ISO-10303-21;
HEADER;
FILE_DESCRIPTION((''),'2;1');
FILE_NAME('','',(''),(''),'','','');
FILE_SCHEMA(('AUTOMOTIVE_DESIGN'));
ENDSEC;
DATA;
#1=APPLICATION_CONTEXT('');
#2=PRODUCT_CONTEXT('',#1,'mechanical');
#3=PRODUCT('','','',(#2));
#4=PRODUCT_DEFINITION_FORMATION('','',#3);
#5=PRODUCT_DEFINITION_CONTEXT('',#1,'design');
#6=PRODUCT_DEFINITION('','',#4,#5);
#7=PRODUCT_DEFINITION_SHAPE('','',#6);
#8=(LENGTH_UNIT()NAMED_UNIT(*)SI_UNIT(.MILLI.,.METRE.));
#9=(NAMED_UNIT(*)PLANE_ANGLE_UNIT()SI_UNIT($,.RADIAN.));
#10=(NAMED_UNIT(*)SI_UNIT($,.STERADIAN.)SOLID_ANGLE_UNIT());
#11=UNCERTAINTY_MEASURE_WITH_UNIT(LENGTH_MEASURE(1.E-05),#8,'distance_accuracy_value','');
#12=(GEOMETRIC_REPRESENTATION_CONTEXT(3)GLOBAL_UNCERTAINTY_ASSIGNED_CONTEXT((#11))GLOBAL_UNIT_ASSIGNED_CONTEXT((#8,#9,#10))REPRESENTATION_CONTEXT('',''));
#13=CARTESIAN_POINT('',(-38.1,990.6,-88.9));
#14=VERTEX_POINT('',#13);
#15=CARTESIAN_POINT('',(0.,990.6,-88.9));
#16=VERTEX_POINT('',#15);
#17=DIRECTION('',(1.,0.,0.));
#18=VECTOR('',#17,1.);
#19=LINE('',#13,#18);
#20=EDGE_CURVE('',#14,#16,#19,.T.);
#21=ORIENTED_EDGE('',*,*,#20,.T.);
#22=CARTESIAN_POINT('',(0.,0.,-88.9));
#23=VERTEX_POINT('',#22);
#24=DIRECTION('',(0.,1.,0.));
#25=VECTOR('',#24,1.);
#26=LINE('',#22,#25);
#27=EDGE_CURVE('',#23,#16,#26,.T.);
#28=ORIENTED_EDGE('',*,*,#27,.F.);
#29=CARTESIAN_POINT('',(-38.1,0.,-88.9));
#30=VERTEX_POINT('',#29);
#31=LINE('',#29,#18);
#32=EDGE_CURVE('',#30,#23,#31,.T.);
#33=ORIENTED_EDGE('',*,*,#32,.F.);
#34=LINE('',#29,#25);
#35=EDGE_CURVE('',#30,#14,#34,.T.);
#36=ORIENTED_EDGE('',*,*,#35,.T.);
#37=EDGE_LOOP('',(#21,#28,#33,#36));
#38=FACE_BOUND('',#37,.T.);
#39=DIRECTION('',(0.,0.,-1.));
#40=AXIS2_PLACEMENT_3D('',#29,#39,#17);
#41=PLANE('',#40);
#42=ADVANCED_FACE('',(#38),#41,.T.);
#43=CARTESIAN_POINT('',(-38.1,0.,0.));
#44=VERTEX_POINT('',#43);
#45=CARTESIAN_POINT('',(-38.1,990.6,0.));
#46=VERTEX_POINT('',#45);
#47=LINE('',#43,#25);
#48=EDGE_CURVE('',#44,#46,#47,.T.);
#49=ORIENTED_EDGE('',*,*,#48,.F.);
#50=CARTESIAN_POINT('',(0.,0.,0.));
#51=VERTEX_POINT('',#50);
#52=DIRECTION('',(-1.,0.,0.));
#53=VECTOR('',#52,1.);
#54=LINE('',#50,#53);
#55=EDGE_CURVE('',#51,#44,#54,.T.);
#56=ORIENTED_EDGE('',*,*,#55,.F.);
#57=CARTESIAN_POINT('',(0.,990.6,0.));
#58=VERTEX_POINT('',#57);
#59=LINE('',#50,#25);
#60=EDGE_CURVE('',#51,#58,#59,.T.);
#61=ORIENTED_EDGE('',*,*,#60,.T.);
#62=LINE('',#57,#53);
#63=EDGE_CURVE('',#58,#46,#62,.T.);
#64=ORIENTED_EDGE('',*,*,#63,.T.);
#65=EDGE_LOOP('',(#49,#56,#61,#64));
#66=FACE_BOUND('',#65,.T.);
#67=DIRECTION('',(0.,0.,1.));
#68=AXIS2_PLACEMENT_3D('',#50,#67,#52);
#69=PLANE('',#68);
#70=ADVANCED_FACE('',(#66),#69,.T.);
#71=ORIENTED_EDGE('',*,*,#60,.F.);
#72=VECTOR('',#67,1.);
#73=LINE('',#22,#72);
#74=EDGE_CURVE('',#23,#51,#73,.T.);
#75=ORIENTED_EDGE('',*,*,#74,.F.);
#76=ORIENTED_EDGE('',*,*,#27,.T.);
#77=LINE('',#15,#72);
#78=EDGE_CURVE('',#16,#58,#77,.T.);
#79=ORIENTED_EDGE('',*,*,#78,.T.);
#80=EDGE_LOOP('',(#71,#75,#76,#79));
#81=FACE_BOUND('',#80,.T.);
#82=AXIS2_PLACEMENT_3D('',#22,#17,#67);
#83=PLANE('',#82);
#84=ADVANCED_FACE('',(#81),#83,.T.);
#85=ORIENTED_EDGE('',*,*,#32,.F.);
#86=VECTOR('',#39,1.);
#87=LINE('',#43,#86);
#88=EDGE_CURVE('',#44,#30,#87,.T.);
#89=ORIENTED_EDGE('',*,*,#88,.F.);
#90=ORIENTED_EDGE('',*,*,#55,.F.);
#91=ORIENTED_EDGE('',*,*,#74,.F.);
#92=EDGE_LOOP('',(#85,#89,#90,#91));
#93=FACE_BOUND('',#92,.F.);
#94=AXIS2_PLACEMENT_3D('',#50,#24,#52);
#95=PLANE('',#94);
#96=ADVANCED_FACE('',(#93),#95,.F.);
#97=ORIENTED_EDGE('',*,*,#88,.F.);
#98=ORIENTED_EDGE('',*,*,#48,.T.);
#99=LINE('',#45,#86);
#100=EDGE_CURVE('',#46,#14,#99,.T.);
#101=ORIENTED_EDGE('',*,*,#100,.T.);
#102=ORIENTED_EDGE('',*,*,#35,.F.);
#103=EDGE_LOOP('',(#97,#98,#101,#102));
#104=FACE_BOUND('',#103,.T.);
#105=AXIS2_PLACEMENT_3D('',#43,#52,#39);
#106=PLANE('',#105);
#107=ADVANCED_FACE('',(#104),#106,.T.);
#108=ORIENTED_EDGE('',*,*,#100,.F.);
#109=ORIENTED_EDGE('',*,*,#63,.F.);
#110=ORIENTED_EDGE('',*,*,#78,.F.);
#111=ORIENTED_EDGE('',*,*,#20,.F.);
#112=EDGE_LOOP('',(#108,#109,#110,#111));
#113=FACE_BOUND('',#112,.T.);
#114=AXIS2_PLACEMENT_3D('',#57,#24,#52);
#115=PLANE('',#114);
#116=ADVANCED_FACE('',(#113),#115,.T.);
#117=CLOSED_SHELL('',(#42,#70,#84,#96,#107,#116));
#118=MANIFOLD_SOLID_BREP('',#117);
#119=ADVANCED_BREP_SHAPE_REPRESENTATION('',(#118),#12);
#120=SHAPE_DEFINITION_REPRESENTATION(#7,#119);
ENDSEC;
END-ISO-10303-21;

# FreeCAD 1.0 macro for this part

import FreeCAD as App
import Part
import Sketcher
from FreeCAD import Vector
Q = App.Units.Quantity


def add_polygon(sketch, points):
    """Adds a closed chain of lines whose ends are joined by coincident constraints."""
    first, n = sketch.GeometryCount, len(points)
    for a, b in zip(points, points[1:] + points[:1]):
        sketch.addGeometry(Part.LineSegment(App.Vector(*a, 0), App.Vector(*b, 0)), False)
    for i in range(n):
        sketch.addConstraint(Sketcher.Constraint("Coincident", first + i, 2, first + (i + 1) % n, 1))

doc = App.newDocument("Part")
params = doc.addObject("Spreadsheet::Sheet", "Params")
for row, (alias, value) in enumerate([
    ("sketch1_width", "1.5 in"),
    ("sketch1_height", "3.5 in"),
    ("pad1_length", "39 in"),
], start=1):
    params.set(f"A{row}", alias)
    params.set(f"B{row}", "=" + value)
    params.setAlias(f"B{row}", alias)

body = doc.addObject("PartDesign::Body", "Body")

# Sketch on XZ plane
sketch1 = body.newObject("Sketcher::SketchObject", "Sketch")
sketch1.AttachmentSupport = (doc.getObject("XZ_Plane"), [""])
sketch1.MapMode = "FlatFace"
add_polygon(sketch1, [(-38, 0), (0, 0), (0, -89), (-38, -89)])  # lines 0-3
sketch1.addConstraint([
    Sketcher.Constraint("Horizontal", 0),
    Sketcher.Constraint("Vertical", 1),
    Sketcher.Constraint("Horizontal", 2),
    Sketcher.Constraint("Vertical", 3),
    Sketcher.Constraint("Coincident", 0, 2, -1, 1),
    Sketcher.Constraint("DistanceX", 0, 1, 0, 2, Q("1.5 in")),
    Sketcher.Constraint("DistanceY", 1, 2, 1, 1, Q("3.5 in")),
])
sketch1.setExpression("Constraints[9]", "Params.sketch1_width")
sketch1.setExpression("Constraints[10]", "Params.sketch1_height")
pad1 = body.newObject("PartDesign::Pad", "Pad")
pad1.Profile = sketch1
pad1.setExpression("Length", "Params.pad1_length")
pad1.Reversed = True

doc.recompute()
